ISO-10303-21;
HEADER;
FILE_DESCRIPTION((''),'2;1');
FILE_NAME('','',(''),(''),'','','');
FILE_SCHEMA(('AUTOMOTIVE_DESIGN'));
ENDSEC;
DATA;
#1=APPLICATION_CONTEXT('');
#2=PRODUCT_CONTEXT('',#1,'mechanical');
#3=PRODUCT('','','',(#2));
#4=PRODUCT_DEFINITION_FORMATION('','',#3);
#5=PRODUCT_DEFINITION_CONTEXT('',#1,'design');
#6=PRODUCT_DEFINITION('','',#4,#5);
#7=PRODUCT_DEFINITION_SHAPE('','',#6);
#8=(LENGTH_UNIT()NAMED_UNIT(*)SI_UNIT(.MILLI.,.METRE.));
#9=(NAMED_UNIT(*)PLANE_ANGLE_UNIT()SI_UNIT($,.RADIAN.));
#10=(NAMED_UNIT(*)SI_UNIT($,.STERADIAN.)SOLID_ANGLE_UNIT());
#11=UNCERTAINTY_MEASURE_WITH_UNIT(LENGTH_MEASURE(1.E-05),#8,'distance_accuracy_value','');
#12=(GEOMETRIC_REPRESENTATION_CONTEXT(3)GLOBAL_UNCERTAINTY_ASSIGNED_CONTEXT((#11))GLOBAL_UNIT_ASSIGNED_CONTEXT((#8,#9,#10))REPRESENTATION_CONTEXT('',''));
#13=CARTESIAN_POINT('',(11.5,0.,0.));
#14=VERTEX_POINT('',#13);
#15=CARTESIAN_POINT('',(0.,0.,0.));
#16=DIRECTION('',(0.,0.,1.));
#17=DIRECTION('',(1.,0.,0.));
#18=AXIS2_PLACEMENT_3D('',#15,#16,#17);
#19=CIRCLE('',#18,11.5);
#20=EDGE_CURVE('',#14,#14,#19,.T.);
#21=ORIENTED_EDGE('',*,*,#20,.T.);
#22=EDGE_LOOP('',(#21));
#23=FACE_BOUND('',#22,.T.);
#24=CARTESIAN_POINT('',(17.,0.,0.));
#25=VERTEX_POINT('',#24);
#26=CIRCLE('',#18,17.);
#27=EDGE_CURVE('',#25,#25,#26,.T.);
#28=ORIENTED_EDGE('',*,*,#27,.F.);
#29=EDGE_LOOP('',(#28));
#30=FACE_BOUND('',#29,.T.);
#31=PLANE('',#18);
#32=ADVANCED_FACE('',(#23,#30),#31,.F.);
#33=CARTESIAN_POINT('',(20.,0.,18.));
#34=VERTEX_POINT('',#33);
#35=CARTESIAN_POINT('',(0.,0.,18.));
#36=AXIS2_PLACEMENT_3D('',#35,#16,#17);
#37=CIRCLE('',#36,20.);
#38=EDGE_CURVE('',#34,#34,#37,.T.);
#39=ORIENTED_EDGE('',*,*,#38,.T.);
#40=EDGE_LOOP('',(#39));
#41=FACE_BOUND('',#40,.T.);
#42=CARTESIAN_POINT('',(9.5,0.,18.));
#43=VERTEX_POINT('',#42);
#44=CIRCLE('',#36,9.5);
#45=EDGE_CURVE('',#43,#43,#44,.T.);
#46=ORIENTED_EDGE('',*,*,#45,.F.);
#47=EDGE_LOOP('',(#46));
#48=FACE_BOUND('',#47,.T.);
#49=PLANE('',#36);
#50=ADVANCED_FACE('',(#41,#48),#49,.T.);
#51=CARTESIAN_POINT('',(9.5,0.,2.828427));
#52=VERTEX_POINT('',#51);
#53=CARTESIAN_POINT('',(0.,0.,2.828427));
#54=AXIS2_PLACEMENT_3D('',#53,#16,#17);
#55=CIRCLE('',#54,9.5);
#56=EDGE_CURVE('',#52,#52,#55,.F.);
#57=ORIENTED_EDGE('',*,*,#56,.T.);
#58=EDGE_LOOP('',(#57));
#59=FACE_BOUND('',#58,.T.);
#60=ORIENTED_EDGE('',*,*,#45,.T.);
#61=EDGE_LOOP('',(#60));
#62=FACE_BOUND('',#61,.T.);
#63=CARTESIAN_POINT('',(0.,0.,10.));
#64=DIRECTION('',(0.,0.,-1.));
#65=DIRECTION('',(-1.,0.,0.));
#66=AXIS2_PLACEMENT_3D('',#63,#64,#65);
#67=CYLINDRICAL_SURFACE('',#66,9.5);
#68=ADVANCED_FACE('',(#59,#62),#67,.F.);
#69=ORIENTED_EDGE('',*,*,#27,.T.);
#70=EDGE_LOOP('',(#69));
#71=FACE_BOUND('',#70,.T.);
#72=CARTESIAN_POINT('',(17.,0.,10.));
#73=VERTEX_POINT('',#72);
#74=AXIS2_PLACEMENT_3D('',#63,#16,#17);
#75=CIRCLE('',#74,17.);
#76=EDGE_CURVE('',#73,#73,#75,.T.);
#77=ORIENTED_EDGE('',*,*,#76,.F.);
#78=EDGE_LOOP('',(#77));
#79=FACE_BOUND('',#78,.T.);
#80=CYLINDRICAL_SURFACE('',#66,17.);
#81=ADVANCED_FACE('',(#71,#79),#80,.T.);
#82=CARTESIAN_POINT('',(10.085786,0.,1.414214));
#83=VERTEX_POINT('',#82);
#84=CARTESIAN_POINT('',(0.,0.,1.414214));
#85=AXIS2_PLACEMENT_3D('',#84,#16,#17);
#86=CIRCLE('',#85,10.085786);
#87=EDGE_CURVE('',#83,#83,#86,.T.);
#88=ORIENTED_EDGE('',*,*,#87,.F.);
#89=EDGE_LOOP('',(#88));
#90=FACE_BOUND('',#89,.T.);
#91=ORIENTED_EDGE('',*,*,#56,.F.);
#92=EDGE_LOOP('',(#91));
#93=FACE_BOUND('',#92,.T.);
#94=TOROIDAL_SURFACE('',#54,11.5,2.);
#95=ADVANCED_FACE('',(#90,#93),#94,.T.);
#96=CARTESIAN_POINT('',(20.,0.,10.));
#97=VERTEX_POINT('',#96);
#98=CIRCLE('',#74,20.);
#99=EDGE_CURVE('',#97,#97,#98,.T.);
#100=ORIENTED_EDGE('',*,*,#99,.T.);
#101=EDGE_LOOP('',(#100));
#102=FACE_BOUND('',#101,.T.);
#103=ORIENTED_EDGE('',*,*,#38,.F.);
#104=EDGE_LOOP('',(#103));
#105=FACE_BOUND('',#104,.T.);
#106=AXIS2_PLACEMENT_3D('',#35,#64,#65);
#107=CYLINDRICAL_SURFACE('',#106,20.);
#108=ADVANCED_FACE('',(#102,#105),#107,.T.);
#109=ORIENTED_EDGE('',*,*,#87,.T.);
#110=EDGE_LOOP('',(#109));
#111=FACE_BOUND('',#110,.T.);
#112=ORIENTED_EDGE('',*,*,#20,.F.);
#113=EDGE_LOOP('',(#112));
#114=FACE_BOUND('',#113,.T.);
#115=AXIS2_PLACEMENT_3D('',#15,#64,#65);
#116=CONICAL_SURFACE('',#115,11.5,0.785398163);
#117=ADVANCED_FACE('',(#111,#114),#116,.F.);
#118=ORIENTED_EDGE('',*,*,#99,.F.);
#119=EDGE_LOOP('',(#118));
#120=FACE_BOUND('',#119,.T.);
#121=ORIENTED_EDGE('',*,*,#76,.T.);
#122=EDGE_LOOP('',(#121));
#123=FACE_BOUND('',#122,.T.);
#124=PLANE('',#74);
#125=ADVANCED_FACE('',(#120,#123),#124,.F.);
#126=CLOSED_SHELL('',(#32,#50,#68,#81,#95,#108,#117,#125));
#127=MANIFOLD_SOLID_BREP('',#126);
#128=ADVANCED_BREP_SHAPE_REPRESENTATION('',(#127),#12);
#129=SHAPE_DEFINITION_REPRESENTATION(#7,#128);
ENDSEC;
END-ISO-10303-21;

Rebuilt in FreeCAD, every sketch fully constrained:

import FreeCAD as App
import Part
import Sketcher

V = App.Vector
Q = App.Units.Quantity


def edges_at(feature, points):
    """Names of the edges that pass closest to the given points."""
    edges = feature.Shape.Edges
    near = lambda p: min(range(len(edges)), key=lambda i: edges[i].distToShape(Part.Vertex(*p))[0])
    return sorted({f"Edge{near(p) + 1}" for p in points})

doc = App.newDocument("Part")
body = doc.addObject("PartDesign::Body", "Body")

# Sketch on XY plane
sketch1 = body.newObject("Sketcher::SketchObject", "Sketch")
sketch1.AttachmentSupport = (doc.getObject("XY_Plane"), [""])
sketch1.MapMode = "FlatFace"
sketch1.addGeometry([
    Part.Circle(V(0, 0, 0), V(0, 0, 1), 17),
    Part.Circle(V(0, 0, 0), V(0, 0, 1), 9.5),
], False)
sketch1.addConstraint([
    Sketcher.Constraint("Coincident", 0, 3, -1, 1),
    Sketcher.Constraint("Coincident", 1, 3, -1, 1),
    Sketcher.Constraint("Diameter", 0, Q("34 mm")),
    Sketcher.Constraint("Diameter", 1, Q("19 mm")),
])
pad1 = body.newObject("PartDesign::Pad", "Pad")
pad1.Profile = sketch1
pad1.Length = 10

# Sketch on XY plane
sketch2 = body.newObject("Sketcher::SketchObject", "Sketch001")
sketch2.AttachmentSupport = (doc.getObject("XY_Plane"), [""])
sketch2.MapMode = "FlatFace"
sketch2.AttachmentOffset = App.Placement(V(0, 0, 10), App.Rotation())
sketch2.addGeometry([
    Part.Circle(V(0, 0, 0), V(0, 0, 1), 20),
    Part.Circle(V(0, 0, 0), V(0, 0, 1), 9.5),
], False)
sketch2.addConstraint([
    Sketcher.Constraint("Coincident", 0, 3, -1, 1),
    Sketcher.Constraint("Coincident", 1, 3, -1, 1),
    Sketcher.Constraint("Diameter", 0, Q("40 mm")),
    Sketcher.Constraint("Diameter", 1, Q("19 mm")),
])
pad2 = body.newObject("PartDesign::Pad", "Pad001")
pad2.Profile = sketch2
pad2.Length = 8
doc.recompute()

chamfer = body.newObject("PartDesign::Chamfer", "Chamfer")
chamfer.Base = (pad2, edges_at(pad2, [(-9.5, 0, 0)]))
chamfer.Size = 2
doc.recompute()

fillet = body.newObject("PartDesign::Fillet", "Fillet")
fillet.Base = (chamfer, edges_at(chamfer, [(-9.5, 0, 2)]))
fillet.Radius = 2

doc.recompute()
